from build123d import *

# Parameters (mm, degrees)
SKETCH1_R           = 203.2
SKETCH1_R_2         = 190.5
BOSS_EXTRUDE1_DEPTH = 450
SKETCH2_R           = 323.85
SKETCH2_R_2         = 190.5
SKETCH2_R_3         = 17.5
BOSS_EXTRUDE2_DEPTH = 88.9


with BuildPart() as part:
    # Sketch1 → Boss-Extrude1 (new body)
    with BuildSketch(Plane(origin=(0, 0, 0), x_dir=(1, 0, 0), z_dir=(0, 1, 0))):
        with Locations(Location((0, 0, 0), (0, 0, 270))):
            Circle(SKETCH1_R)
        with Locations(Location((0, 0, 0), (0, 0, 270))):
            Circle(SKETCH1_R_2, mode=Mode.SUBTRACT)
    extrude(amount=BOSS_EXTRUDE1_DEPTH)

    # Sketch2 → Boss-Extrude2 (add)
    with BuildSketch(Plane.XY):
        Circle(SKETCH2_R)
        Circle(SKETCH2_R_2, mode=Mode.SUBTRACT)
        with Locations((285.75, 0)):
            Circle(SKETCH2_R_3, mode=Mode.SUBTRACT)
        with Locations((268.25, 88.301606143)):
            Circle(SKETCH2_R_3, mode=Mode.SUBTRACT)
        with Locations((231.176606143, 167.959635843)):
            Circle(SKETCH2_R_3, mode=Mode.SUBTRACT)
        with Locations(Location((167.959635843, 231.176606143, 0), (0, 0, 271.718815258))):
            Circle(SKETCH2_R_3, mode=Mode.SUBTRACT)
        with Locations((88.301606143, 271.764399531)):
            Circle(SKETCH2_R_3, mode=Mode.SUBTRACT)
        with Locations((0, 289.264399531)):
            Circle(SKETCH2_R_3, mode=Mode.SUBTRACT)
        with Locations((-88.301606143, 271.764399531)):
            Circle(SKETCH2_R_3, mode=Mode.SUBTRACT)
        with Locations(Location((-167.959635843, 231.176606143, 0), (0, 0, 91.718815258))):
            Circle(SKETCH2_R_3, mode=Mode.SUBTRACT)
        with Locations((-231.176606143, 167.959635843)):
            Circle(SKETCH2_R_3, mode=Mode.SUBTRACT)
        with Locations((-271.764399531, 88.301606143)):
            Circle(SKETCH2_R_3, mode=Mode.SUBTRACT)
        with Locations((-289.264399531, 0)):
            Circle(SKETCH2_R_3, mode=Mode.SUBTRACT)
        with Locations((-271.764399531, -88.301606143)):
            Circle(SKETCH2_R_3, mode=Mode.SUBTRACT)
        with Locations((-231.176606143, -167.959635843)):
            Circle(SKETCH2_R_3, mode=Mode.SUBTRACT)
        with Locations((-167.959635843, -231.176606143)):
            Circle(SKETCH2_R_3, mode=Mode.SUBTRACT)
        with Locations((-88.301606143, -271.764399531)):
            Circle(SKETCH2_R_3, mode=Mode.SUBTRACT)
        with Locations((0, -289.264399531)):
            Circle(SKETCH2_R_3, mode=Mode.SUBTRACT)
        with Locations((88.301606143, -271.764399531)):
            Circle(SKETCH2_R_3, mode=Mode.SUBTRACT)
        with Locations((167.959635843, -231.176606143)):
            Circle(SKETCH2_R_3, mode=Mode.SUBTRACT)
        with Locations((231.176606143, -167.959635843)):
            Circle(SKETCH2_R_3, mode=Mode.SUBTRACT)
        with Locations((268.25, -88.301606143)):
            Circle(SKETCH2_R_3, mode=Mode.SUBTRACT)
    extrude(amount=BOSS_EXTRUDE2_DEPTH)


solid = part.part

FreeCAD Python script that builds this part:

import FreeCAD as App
import Part
import Sketcher
Q = App.Units.Quantity

doc = App.newDocument("Part")
params = doc.addObject("Spreadsheet::Sheet", "Params")
for row, (alias, value) in enumerate([
    ("sketch1_diameter", "16 in"),
    ("sketch1_diameter2", "15 in"),
    ("pad1_length", "450 mm"),
    ("sketch2_diameter", "15 in"),
    ("sketch2_diameter2", "25.5 in"),
    ("pad2_length", "3.5 in"),
], start=1):
    params.set(f"A{row}", alias)
    params.set(f"B{row}", "=" + value)
    params.setAlias(f"B{row}", alias)

body = doc.addObject("PartDesign::Body", "Body")

# Sketch on XZ plane
sketch1 = body.newObject("Sketcher::SketchObject", "Sketch")
sketch1.AttachmentSupport = (doc.getObject("XZ_Plane"), [""])
sketch1.MapMode = "FlatFace"
sketch1.addGeometry([
    Part.Circle(App.Vector(0, 0, 0), App.Vector(0, 0, 1), 203),
    Part.Circle(App.Vector(0, 0, 0), App.Vector(0, 0, 1), 190),
], False)
sketch1.addConstraint([
    Sketcher.Constraint("Coincident", 0, 3, -1, 1),
    Sketcher.Constraint("Coincident", 1, 3, -1, 1),
    Sketcher.Constraint("Diameter", 0, Q("16 in")),
    Sketcher.Constraint("Diameter", 1, Q("15 in")),
])
sketch1.setExpression("Constraints[2]", "Params.sketch1_diameter")
sketch1.setExpression("Constraints[3]", "Params.sketch1_diameter2")
pad1 = body.newObject("PartDesign::Pad", "Pad")
pad1.Profile = sketch1
pad1.setExpression("Length", "Params.pad1_length")
pad1.Reversed = True

# Sketch on XY plane
sketch2 = body.newObject("Sketcher::SketchObject", "Sketch001")
sketch2.AttachmentSupport = (doc.getObject("XY_Plane"), [""])
sketch2.MapMode = "FlatFace"
sketch2.addGeometry([
    Part.Circle(App.Vector(0, 0, 0), App.Vector(0, 0, 1), 324),  # 0
    Part.Circle(App.Vector(-168, -231, 0), App.Vector(0, 0, 1), 18),  # 1
    Part.Circle(App.Vector(-231, -168, 0), App.Vector(0, 0, 1), 18),  # 2
    Part.Circle(App.Vector(-88, -272, 0), App.Vector(0, 0, 1), 18),  # 3
    Part.Circle(App.Vector(-272, -88, 0), App.Vector(0, 0, 1), 18),  # 4
    Part.Circle(App.Vector(0, -289, 0), App.Vector(0, 0, 1), 18),  # 5
    Part.Circle(App.Vector(88, -272, 0), App.Vector(0, 0, 1), 18),  # 6
    Part.Circle(App.Vector(168, -231, 0), App.Vector(0, 0, 1), 18),  # 7
    Part.Circle(App.Vector(231, -168, 0), App.Vector(0, 0, 1), 18),  # 8
    Part.Circle(App.Vector(268, -88, 0), App.Vector(0, 0, 1), 18),  # 9
    Part.Circle(App.Vector(-289, 0, 0), App.Vector(0, 0, 1), 18),  # 10
    Part.Circle(App.Vector(-272, 88, 0), App.Vector(0, 0, 1), 18),  # 11
    Part.Circle(App.Vector(-231, 168, 0), App.Vector(0, 0, 1), 18),  # 12
    Part.Circle(App.Vector(-168, 231, 0), App.Vector(0, 0, 1), 18),  # 13
    Part.Circle(App.Vector(-88, 272, 0), App.Vector(0, 0, 1), 18),  # 14
    Part.Circle(App.Vector(0, 0, 0), App.Vector(0, 0, 1), 190),  # 15
    Part.Circle(App.Vector(286, 0, 0), App.Vector(0, 0, 1), 18),  # 16
    Part.Circle(App.Vector(268, 88, 0), App.Vector(0, 0, 1), 18),  # 17
    Part.Circle(App.Vector(0, 289, 0), App.Vector(0, 0, 1), 18),  # 18
    Part.Circle(App.Vector(88, 272, 0), App.Vector(0, 0, 1), 18),  # 19
    Part.Circle(App.Vector(231, 168, 0), App.Vector(0, 0, 1), 18),  # 20
    Part.Circle(App.Vector(168, 231, 0), App.Vector(0, 0, 1), 18),  # 21
], False)
sketch2.addConstraint([
    Sketcher.Constraint("Coincident", 0, 3, -1, 1),
    Sketcher.Constraint("Coincident", 15, 3, -1, 1),
    Sketcher.Constraint("Equal", 1, 2),
    Sketcher.Constraint("Equal", 2, 3),
    Sketcher.Constraint("Equal", 3, 4),
    Sketcher.Constraint("Equal", 4, 5),
    Sketcher.Constraint("Equal", 5, 6),
    Sketcher.Constraint("Equal", 6, 7),
    Sketcher.Constraint("Equal", 7, 8),
    Sketcher.Constraint("Equal", 8, 9),
    Sketcher.Constraint("Equal", 9, 10),
    Sketcher.Constraint("Equal", 10, 11),
    Sketcher.Constraint("Equal", 11, 12),
    Sketcher.Constraint("Equal", 12, 13),
    Sketcher.Constraint("Equal", 13, 14),
    Sketcher.Constraint("Equal", 14, 16),
    Sketcher.Constraint("Equal", 16, 17),
    Sketcher.Constraint("Equal", 17, 18),
    Sketcher.Constraint("Equal", 18, 19),
    Sketcher.Constraint("Equal", 19, 20),
    Sketcher.Constraint("Equal", 20, 21),
    Sketcher.Constraint("Symmetric", 8, 3, 12, 3, -1, 1),
    Sketcher.Constraint("Symmetric", 7, 3, 13, 3, -1, 1),
    Sketcher.Constraint("Symmetric", 6, 3, 14, 3, -1, 1),
    Sketcher.Constraint("Symmetric", 5, 3, 18, 3, -1, 1),
    Sketcher.Constraint("Symmetric", 3, 3, 19, 3, -1, 1),
    Sketcher.Constraint("Symmetric", 2, 3, 20, 3, -1, 1),
    Sketcher.Constraint("Symmetric", 1, 3, 21, 3, -1, 1),
    Sketcher.Constraint("Symmetric", 3, 3, 6, 3, -2),
    Sketcher.Constraint("Symmetric", 1, 3, 7, 3, -2),
    Sketcher.Constraint("Symmetric", 2, 3, 8, 3, -2),
    Sketcher.Constraint("Symmetric", 4, 3, 11, 3, -1),
    Sketcher.Constraint("Symmetric", 9, 3, 17, 3, -1),
    Sketcher.Constraint("PointOnObject", 5, 3, -2),
    Sketcher.Constraint("PointOnObject", 10, 3, -1),
    Sketcher.Constraint("PointOnObject", 16, 3, -1),
    Sketcher.Constraint("Horizontal", 4, 3, 9, 3),
    Sketcher.Constraint("Diameter", 15, Q("15 in")),
    Sketcher.Constraint("Diameter", 0, Q("25.5 in")),
    Sketcher.Constraint("Diameter", 1, Q("35 mm")),
    Sketcher.Constraint("DistanceX", -1, 1, 16, 3, Q("11.25 in")),
    Sketcher.Constraint("DistanceX", 2, 3, 3, 3, Q("5.625 in")),
    Sketcher.Constraint("DistanceY", 1, 3, 4, 3, Q("5.625 in")),
    Sketcher.Constraint("DistanceY", 3, 3, -1, 1, Q("271.7644 mm")),
    Sketcher.Constraint("DistanceX", 4, 3, -1, 1, Q("271.7644 mm")),
    Sketcher.Constraint("DistanceY", 5, 3, -1, 1, Q("289.2644 mm")),
    Sketcher.Constraint("DistanceX", -1, 1, 9, 3, Q("268.25 mm")),
    Sketcher.Constraint("DistanceX", 10, 3, -1, 1, Q("289.2644 mm")),
    Sketcher.Constraint("DistanceX", 2, 3, 1, 3, Q("63.21697 mm")),
    Sketcher.Constraint("DistanceY", 1, 3, 2, 3, Q("63.21697 mm")),
    Sketcher.Constraint("DistanceX", 1, 3, 6, 3, Q("256.261242 mm")),
    Sketcher.Constraint("DistanceY", 2, 3, 11, 3, Q("256.261242 mm")),
])
sketch2.setExpression("Constraints[37]", "Params.sketch2_diameter")
sketch2.setExpression("Constraints[38]", "Params.sketch2_diameter2")
pad2 = body.newObject("PartDesign::Pad", "Pad001")
pad2.Profile = sketch2
pad2.setExpression("Length", "Params.pad2_length")

doc.recompute()
